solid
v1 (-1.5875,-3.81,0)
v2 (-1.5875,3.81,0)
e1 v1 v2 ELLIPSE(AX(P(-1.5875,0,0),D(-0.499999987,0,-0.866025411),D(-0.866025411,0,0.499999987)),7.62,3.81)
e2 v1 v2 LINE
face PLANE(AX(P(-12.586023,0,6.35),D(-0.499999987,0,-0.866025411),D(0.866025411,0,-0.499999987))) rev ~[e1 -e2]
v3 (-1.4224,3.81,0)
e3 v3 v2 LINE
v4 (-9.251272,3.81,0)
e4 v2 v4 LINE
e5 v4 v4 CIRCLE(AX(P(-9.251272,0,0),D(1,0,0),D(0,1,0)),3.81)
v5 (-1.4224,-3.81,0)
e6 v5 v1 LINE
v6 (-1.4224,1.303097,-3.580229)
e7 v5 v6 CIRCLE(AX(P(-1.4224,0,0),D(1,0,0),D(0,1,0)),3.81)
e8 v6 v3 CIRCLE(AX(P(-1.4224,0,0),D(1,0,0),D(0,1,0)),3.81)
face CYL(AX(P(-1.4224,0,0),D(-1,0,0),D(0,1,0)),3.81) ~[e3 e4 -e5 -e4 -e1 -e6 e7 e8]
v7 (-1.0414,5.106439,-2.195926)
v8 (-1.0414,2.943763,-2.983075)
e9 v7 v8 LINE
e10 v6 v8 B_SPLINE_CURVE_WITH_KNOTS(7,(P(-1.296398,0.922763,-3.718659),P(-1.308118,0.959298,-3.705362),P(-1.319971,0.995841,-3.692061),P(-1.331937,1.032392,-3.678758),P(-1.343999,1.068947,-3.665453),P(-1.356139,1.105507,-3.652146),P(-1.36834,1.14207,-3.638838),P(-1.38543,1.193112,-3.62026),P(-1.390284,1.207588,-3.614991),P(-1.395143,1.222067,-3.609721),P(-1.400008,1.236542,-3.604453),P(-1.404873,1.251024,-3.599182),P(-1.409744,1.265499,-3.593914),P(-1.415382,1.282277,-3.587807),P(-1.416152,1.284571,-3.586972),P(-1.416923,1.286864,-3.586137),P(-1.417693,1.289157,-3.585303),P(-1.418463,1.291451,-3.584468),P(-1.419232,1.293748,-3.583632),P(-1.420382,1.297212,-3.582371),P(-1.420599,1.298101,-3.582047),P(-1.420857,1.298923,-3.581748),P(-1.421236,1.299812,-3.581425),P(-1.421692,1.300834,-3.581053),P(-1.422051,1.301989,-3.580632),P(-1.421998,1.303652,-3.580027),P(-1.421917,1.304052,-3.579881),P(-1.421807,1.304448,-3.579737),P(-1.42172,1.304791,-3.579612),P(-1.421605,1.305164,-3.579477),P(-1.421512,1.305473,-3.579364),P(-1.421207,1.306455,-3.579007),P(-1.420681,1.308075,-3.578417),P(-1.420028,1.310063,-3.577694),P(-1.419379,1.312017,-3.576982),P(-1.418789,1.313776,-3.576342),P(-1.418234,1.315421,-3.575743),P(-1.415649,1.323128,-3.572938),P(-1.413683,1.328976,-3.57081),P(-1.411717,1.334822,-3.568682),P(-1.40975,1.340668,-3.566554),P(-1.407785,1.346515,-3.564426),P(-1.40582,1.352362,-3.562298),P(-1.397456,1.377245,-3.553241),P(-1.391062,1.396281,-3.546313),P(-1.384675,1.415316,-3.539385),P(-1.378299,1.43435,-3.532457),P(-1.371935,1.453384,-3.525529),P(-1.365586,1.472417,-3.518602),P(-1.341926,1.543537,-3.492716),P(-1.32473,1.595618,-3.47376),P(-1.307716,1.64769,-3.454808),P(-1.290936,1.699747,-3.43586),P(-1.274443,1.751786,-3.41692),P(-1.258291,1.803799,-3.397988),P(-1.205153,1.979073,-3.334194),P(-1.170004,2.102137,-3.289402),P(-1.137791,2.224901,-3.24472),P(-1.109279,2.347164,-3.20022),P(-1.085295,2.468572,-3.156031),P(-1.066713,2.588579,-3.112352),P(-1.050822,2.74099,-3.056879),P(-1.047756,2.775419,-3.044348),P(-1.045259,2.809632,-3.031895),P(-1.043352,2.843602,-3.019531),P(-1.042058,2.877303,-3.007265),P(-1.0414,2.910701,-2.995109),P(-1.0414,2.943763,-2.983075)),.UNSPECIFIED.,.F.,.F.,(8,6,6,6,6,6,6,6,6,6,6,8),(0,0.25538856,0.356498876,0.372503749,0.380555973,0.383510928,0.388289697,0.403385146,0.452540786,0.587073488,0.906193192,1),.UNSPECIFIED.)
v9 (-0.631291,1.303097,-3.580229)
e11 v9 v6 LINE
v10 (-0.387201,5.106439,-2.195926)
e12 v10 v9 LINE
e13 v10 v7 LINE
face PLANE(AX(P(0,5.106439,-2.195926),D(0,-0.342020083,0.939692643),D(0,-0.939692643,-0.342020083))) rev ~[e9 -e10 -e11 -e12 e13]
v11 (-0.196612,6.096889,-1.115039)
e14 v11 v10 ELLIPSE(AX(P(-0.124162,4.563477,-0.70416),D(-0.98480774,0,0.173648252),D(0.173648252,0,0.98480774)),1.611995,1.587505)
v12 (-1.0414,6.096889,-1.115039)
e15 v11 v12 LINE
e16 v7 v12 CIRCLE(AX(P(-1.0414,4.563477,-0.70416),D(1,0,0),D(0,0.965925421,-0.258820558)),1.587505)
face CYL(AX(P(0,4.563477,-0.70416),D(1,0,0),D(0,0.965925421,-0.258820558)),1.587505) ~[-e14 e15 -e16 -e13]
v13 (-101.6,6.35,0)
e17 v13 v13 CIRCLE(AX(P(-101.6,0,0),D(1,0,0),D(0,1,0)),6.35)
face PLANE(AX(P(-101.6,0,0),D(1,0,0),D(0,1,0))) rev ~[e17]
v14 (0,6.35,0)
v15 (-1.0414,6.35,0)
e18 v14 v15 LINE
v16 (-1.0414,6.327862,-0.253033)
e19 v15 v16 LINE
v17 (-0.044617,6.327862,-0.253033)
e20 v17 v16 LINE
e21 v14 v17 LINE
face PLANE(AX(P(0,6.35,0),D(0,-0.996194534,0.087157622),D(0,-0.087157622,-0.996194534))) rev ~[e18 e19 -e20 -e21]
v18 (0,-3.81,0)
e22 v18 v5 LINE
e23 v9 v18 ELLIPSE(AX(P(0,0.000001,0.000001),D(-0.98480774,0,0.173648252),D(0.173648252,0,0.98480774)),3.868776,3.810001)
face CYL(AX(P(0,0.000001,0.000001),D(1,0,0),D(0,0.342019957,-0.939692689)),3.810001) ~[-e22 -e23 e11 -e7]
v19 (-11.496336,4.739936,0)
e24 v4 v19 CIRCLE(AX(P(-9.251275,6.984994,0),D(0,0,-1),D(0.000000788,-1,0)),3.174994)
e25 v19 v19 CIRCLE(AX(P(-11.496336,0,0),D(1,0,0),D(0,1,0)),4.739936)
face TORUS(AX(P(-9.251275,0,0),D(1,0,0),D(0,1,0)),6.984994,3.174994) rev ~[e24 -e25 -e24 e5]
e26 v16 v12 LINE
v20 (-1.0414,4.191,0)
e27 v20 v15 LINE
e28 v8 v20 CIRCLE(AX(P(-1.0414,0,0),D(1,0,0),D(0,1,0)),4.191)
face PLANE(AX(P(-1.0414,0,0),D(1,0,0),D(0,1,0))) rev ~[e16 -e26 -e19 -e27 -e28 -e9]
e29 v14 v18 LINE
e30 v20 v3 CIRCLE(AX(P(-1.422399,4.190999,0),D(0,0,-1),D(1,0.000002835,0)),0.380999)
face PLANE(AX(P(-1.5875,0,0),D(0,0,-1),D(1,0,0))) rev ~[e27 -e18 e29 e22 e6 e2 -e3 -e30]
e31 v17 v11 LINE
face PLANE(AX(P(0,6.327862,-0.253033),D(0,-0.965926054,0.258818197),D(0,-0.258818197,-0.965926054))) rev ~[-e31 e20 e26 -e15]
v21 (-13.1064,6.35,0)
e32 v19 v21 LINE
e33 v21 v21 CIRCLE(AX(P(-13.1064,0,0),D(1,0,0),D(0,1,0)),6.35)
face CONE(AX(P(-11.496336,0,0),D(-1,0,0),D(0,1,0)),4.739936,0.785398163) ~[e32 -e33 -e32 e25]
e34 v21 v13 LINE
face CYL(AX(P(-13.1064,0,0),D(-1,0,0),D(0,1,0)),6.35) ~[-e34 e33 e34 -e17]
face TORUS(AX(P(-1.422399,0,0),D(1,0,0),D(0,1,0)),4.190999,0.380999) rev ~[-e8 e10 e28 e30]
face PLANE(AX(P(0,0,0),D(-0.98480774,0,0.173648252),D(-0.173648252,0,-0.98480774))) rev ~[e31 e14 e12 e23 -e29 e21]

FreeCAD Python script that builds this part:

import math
import FreeCAD as App
import Part
import Sketcher
from FreeCAD import Vector
Q = App.Units.Quantity


def add_polygon(sketch, points):
    """Adds a closed chain of lines whose ends are joined by coincident constraints."""
    first, n = sketch.GeometryCount, len(points)
    for a, b in zip(points, points[1:] + points[:1]):
        sketch.addGeometry(Part.LineSegment(App.Vector(*a, 0), App.Vector(*b, 0)), False)
    for i in range(n):
        sketch.addConstraint(Sketcher.Constraint("Coincident", first + i, 2, first + (i + 1) % n, 1))

doc = App.newDocument("Part")
params = doc.addObject("Spreadsheet::Sheet", "Params")
for row, (alias, value) in enumerate([
    ("sketch1_width", "4 in"),
    ("sketch1_radius", "0.015 in"),
    ("sketch1_height", "0.25 in"),
    ("sketch1_width2", "0.041 in"),
    ("sketch1_width3", "3.484 in"),
    ("revolution_angle", "360 deg"),
    ("sketch2_length", "0.5 in"),
    ("sketch2_width", "0.0625 in"),
    ("pocket1_length", "1 in"),
    ("sketch3_radius", "0.15 in"),
    ("sketch3_width", "0.51 in"),
    ("sketch3_width2", "0.11 in"),
    ("sketch3_height", "0.26 in"),
    ("sketch3_length", "0.01 in"),
    ("pocket2_length", "0.0625 in"),
    ("pocket3_length", "1 in"),
], start=1):
    params.set(f"A{row}", alias)
    params.set(f"B{row}", "=" + value)
    params.setAlias(f"B{row}", alias)

body = doc.addObject("PartDesign::Body", "Body")

# Sketch on XY plane
sketch1 = body.newObject("Sketcher::SketchObject", "Sketch")
sketch1.AttachmentSupport = (doc.getObject("XY_Plane"), [""])
sketch1.MapMode = "FlatFace"
sketch1.addGeometry([
    Part.LineSegment(Vector(-101.6, 0, 0), Vector(0, 0, 0)),  # 0
    Part.LineSegment(Vector(0, 0, 0), Vector(0, 6.35, 0)),  # 1
    Part.LineSegment(Vector(0, 6.35, 0), Vector(-1.04, 6.35, 0)),  # 2
    Part.LineSegment(Vector(-1.04, 6.35, 0), Vector(-1.04, 4.19, 0)),  # 3
    Part.ArcOfCircle(Part.Circle(Vector(-1.42, 4.19, 0), Vector(0, 0, 1), 0.38), math.radians(-90), math.radians(0)),  # 4
    Part.LineSegment(Vector(-1.42, 3.81, 0), Vector(-9.25, 3.81, 0)),  # 5
    Part.ArcOfCircle(Part.Circle(Vector(-9.25, 6.98, 0), Vector(0, 0, 1), 3.17), math.radians(-135), math.radians(-90)),  # 6
    Part.LineSegment(Vector(-11.5, 4.74, 0), Vector(-13.11, 6.35, 0)),  # 7
    Part.LineSegment(Vector(-13.11, 6.35, 0), Vector(-101.6, 6.35, 0)),  # 8
    Part.LineSegment(Vector(-101.6, 6.35, 0), Vector(-101.6, 0, 0)),  # 9
], False)
sketch1.addConstraint([
    Sketcher.Constraint("Coincident", 0, 2, 1, 1),
    Sketcher.Constraint("Coincident", 1, 2, 2, 1),
    Sketcher.Constraint("Coincident", 2, 2, 3, 1),
    Sketcher.Constraint("Coincident", 3, 2, 4, 2),
    Sketcher.Constraint("Coincident", 4, 1, 5, 1),
    Sketcher.Constraint("Tangent", 5, 2, 6, 2),
    Sketcher.Constraint("Tangent", 6, 1, 7, 1),
    Sketcher.Constraint("Coincident", 7, 2, 8, 1),
    Sketcher.Constraint("Coincident", 8, 2, 9, 1),
    Sketcher.Constraint("Coincident", 9, 2, 0, 1),
    Sketcher.Constraint("Horizontal", 0),
    Sketcher.Constraint("Vertical", 1),
    Sketcher.Constraint("Horizontal", 2),
    Sketcher.Constraint("Vertical", 3),
    Sketcher.Constraint("Horizontal", 5),
    Sketcher.Constraint("Horizontal", 8),
    Sketcher.Constraint("Vertical", 9),
    Sketcher.Constraint("Coincident", 0, 2, -1, 1),
    Sketcher.Constraint("Horizontal", 4, 3, 3, 2),
    Sketcher.Constraint("Horizontal", 2, 2, 7, 2),
    Sketcher.Constraint("DistanceX", 0, 1, 0, 2, Q("4 in")),
    Sketcher.Constraint("Angle", 7, Q("135 deg")),
    Sketcher.Constraint("Radius", 4, Q("0.015 in")),
    Sketcher.Constraint("DistanceY", 1, 1, 1, 2, Q("0.25 in")),
    Sketcher.Constraint("DistanceY", 4, 1, 2, 2, Q("0.1 in")),
    Sketcher.Constraint("DistanceX", 2, 2, 2, 1, Q("0.041 in")),
    Sketcher.Constraint("DistanceX", 8, 2, 8, 1, Q("3.484 in")),
    Sketcher.Constraint("DistanceX", 7, 2, 4, 1, Q("0.46 in")),
    Sketcher.Constraint("Radius", 6, Q("3.174994 mm")),
])
sketch1.setExpression("Constraints[20]", "Params.sketch1_width")
sketch1.setExpression("Constraints[22]", "Params.sketch1_radius")
sketch1.setExpression("Constraints[23]", "Params.sketch1_height")
sketch1.setExpression("Constraints[25]", "Params.sketch1_width2")
sketch1.setExpression("Constraints[26]", "Params.sketch1_width3")
revolution = body.newObject("PartDesign::Revolution", "Revolution")
revolution.Profile = sketch1
revolution.ReferenceAxis = (sketch1, ["H_Axis"])
revolution.setExpression("Angle", "Params.revolution_angle")

# Sketch on XZ plane
sketch2 = body.newObject("Sketcher::SketchObject", "Sketch001")
sketch2.AttachmentSupport = (doc.getObject("XZ_Plane"), [""])
sketch2.MapMode = "FlatFace"
add_polygon(sketch2, [(-1.6, 0), (0, 0), (0, 6.3), (-12.6, 6.3)])  # lines 0-3
sketch2.addConstraint([
    Sketcher.Constraint("Horizontal", 0),
    Sketcher.Constraint("Vertical", 1),
    Sketcher.Constraint("Horizontal", 2),
    Sketcher.Constraint("Coincident", 0, 2, -1, 1),
    Sketcher.Constraint("Angle", 3, Q("-29.999999 deg")),
    Sketcher.Constraint("Distance", 3, Q("0.5 in")),
    Sketcher.Constraint("DistanceX", 0, 1, 0, 2, Q("0.0625 in")),
])
sketch2.setExpression("Constraints[9]", "Params.sketch2_length")
sketch2.setExpression("Constraints[10]", "Params.sketch2_width")
pocket1 = body.newObject("PartDesign::Pocket", "Pocket")
pocket1.Profile = sketch2
pocket1.setExpression("Length", "Params.pocket1_length")
pocket1.Midplane = True

# Sketch on YZ plane
sketch3 = body.newObject("Sketcher::SketchObject", "Sketch002")
sketch3.AttachmentSupport = (doc.getObject("YZ_Plane"), [""])
sketch3.MapMode = "FlatFace"
sketch3.addGeometry([
    Part.LineSegment(Vector(-6.6, 0, 0), Vector(-6.6, -6.6, 0)),  # 0
    Part.LineSegment(Vector(-6.6, -6.6, 0), Vector(6.35, -6.6, 0)),  # 1
    Part.LineSegment(Vector(6.35, -6.6, 0), Vector(6.35, 0, 0)),  # 2
    Part.LineSegment(Vector(6.35, 0, 0), Vector(6.33, -0.25, 0)),  # 3
    Part.LineSegment(Vector(6.33, -0.25, 0), Vector(6.1, -1.12, 0)),  # 4
    Part.ArcOfCircle(Part.Circle(Vector(4.56, -0.7, 0), Vector(0, 0, 1), 1.59), math.radians(-70), math.radians(-15)),  # 5
    Part.LineSegment(Vector(5.11, -2.2, 0), Vector(1.3, -3.58, 0)),  # 6
    Part.ArcOfCircle(Part.Circle(Vector(0, 0, 0), Vector(0, 0, 1), 3.81), math.radians(-180), math.radians(-70)),  # 7
    Part.LineSegment(Vector(-3.81, 0, 0), Vector(-6.6, 0, 0)),  # 8
], False)
sketch3.addConstraint([
    Sketcher.Constraint("Coincident", 0, 2, 1, 1),
    Sketcher.Constraint("Coincident", 1, 2, 2, 1),
    Sketcher.Constraint("Coincident", 2, 2, 3, 1),
    Sketcher.Constraint("Coincident", 3, 2, 4, 1),
    Sketcher.Constraint("Coincident", 4, 2, 5, 2),
    Sketcher.Constraint("Coincident", 5, 1, 6, 1),
    Sketcher.Constraint("Tangent", 6, 2, 7, 2),
    Sketcher.Constraint("Coincident", 7, 1, 8, 1),
    Sketcher.Constraint("Coincident", 8, 2, 0, 1),
    Sketcher.Constraint("Vertical", 0),
    Sketcher.Constraint("Horizontal", 1),
    Sketcher.Constraint("Vertical", 2),
    Sketcher.Constraint("Horizontal", 8),
    Sketcher.Constraint("Coincident", 7, 3, -1, 1),
    Sketcher.Constraint("PointOnObject", 2, 2, -1),
    Sketcher.Constraint("PointOnObject", 7, 1, -1),
    Sketcher.Constraint("Radius", 7, Q("0.15 in")),
    Sketcher.Constraint("Angle", 6, Q("-160.000004 deg")),
    Sketcher.Constraint("DistanceX", 1, 1, 1, 2, Q("0.51 in")),
    Sketcher.Constraint("DistanceX", 8, 2, 8, 1, Q("0.11 in")),
    Sketcher.Constraint("DistanceY", 0, 2, 0, 1, Q("0.26 in")),
    Sketcher.Constraint("Distance", 3, Q("0.01 in")),
    Sketcher.Constraint("Radius", 5, Q("1.587505 mm")),
    Sketcher.Constraint("DistanceY", 6, 2, 5, 1, Q("0.0545001 in")),
    Sketcher.Constraint("DistanceY", 5, 3, -1, 1, Q("0.70416 mm")),
    Sketcher.Constraint("DistanceX", -1, 1, 3, 2, Q("6.327862 mm")),
    Sketcher.Constraint("DistanceX", -1, 1, 4, 2, Q("6.096889 mm")),
])
sketch3.setExpression("Constraints[16]", "Params.sketch3_radius")
sketch3.setExpression("Constraints[18]", "Params.sketch3_width")
sketch3.setExpression("Constraints[19]", "Params.sketch3_width2")
sketch3.setExpression("Constraints[20]", "Params.sketch3_height")
sketch3.setExpression("Constraints[21]", "Params.sketch3_length")
pocket2 = body.newObject("PartDesign::Pocket", "Pocket001")
pocket2.Profile = sketch3
pocket2.setExpression("Length", "Params.pocket2_length")

# Sketch on XZ plane
sketch4 = body.newObject("Sketcher::SketchObject", "Sketch003")
sketch4.AttachmentSupport = (doc.getObject("XZ_Plane"), [""])
sketch4.MapMode = "FlatFace"
add_polygon(sketch4, [(0, -4.2), (0, 0), (-0.7, -4.2)])  # lines 0-2
sketch4.addConstraint([
    Sketcher.Constraint("Vertical", 0),
    Sketcher.Constraint("Horizontal", 2),
    Sketcher.Constraint("Coincident", 0, 2, -1, 1),
    Sketcher.Constraint("Angle", 1, Q("-100.000004 deg")),
    Sketcher.Constraint("DistanceY", 0, 1, 0, 2, Q("4.24096 mm")),
])
pocket3 = body.newObject("PartDesign::Pocket", "Pocket002")
pocket3.Profile = sketch4
pocket3.setExpression("Length", "Params.pocket3_length")
pocket3.Midplane = True

doc.recompute()
